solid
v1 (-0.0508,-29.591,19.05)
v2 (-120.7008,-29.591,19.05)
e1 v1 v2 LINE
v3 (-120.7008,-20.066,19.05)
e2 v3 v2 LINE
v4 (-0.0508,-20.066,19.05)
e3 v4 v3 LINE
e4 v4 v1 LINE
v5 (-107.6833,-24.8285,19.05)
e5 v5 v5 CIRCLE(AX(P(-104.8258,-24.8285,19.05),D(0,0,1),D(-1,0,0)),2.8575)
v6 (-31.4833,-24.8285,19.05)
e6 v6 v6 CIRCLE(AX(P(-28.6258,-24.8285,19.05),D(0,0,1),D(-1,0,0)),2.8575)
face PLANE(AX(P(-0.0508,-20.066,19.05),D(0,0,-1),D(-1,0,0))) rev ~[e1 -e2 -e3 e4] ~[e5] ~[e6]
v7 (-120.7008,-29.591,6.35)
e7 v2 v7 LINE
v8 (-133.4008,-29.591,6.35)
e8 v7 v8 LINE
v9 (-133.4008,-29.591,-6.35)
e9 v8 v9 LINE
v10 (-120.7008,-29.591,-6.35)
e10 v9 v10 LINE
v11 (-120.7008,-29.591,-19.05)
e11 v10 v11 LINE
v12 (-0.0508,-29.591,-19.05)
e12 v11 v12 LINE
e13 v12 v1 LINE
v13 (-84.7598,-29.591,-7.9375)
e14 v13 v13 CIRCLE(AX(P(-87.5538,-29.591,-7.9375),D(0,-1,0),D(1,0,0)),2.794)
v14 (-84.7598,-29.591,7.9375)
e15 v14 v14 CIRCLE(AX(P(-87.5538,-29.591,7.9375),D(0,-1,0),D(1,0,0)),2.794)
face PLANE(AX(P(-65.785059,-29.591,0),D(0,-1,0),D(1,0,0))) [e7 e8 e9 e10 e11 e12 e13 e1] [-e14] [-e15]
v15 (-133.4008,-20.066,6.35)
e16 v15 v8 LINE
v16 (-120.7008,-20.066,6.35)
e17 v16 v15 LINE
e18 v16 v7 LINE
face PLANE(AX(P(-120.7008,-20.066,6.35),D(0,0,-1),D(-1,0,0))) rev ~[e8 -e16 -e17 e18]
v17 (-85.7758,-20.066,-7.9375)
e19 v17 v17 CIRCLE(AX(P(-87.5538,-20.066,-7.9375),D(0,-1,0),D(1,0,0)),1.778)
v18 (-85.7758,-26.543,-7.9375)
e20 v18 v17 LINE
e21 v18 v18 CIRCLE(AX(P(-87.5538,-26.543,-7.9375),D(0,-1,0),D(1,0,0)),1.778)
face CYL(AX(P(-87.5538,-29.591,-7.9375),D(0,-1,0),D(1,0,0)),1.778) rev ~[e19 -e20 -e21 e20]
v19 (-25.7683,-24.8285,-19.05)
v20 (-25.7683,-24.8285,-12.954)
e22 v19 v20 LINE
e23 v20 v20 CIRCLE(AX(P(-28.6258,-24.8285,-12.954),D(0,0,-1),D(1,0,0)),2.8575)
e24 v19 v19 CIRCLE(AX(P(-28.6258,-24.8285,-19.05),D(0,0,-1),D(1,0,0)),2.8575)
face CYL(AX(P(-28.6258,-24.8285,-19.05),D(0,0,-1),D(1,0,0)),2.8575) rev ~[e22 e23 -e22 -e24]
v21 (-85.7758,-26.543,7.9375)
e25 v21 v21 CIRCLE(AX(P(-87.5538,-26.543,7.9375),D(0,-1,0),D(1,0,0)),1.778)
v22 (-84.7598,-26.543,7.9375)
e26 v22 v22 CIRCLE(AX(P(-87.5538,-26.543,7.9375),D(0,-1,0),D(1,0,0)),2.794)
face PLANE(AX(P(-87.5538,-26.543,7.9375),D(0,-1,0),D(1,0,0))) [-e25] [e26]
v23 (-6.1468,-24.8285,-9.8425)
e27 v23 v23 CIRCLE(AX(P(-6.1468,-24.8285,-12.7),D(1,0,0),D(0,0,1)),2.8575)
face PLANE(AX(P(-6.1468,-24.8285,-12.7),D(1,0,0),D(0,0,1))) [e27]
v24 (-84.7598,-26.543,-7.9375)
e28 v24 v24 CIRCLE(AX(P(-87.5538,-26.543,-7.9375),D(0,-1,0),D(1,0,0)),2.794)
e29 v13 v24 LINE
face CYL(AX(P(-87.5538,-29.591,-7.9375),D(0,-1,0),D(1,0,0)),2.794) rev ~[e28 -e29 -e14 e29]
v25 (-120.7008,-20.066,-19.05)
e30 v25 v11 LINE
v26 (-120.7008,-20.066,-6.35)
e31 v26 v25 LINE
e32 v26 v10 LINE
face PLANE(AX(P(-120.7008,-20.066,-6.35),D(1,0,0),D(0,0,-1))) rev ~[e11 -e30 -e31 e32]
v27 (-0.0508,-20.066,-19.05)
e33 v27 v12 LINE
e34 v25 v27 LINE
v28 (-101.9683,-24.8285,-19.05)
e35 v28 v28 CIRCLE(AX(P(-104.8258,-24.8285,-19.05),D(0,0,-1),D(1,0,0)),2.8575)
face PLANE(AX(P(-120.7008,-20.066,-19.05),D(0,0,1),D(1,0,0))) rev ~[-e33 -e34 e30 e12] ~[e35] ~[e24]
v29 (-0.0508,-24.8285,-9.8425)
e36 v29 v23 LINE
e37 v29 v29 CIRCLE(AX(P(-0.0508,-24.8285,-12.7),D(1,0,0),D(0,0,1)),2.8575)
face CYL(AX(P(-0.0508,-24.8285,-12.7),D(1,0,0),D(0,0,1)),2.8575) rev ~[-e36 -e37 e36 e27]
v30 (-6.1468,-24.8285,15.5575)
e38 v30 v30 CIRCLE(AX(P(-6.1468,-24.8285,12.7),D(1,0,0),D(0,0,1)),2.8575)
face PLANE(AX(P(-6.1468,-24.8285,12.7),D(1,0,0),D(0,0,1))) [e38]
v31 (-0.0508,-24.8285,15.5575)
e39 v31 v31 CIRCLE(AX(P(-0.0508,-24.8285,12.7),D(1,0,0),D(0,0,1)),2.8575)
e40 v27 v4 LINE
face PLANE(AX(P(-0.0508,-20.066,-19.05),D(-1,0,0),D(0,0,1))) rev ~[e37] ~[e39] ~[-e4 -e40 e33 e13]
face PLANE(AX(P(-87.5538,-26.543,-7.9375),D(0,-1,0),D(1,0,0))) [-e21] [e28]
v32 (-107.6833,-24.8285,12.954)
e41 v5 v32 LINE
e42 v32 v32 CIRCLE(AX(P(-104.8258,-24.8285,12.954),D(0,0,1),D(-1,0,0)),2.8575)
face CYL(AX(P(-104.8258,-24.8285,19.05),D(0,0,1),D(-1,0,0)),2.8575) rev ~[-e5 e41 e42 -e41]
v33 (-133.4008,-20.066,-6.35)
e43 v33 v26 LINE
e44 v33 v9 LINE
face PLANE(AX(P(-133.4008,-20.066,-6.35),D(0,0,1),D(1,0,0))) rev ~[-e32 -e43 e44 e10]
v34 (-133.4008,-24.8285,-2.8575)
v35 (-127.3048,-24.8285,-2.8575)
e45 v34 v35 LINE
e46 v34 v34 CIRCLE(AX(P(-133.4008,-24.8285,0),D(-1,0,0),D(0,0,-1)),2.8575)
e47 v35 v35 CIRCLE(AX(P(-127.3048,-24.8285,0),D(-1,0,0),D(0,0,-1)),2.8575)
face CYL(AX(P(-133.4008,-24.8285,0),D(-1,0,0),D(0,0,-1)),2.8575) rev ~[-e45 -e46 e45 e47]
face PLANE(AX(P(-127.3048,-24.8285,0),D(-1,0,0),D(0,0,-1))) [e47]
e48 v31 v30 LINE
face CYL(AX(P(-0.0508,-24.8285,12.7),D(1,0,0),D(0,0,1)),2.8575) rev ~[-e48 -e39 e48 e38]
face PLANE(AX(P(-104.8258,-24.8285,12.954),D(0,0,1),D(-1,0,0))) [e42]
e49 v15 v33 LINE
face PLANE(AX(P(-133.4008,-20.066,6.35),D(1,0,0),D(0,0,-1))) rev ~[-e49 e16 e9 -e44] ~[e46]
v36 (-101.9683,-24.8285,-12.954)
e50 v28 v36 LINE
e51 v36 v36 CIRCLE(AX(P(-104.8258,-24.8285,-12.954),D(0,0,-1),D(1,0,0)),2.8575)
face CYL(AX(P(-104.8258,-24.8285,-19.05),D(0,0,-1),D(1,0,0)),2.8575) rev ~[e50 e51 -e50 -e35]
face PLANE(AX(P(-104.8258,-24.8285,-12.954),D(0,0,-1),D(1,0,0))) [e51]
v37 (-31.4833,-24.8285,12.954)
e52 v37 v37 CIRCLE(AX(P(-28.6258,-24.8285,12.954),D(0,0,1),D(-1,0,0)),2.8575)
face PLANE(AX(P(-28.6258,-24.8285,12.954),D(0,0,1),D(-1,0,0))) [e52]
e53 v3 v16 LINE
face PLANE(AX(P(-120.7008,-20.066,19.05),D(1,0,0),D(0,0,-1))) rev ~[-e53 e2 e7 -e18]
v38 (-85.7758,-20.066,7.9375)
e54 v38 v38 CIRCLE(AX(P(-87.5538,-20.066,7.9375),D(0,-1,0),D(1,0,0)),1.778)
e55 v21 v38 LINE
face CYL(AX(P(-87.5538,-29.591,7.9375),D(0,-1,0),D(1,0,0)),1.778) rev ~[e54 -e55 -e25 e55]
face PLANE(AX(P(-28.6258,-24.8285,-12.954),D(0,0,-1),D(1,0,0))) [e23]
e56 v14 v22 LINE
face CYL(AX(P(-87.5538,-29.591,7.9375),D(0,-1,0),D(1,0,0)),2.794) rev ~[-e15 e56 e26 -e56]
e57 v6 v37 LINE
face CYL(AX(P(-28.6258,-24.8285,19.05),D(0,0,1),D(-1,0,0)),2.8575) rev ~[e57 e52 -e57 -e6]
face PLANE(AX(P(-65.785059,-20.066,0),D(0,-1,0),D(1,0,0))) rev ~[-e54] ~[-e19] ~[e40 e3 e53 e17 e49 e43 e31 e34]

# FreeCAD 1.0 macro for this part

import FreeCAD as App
import Part
import Sketcher

V = App.Vector
Q = App.Units.Quantity

doc = App.newDocument("Part")
body = doc.addObject("PartDesign::Body", "Body")

sketch1 = body.newObject("Sketcher::SketchObject", "Sketch")
sketch1.AttachmentSupport = (doc.getObject("XZ_Plane"), [""])
sketch1.MapMode = "FlatFace"
sketch1.addGeometry([
    Part.LineSegment(V(66.675, -19.05, 0), V(66.675, 19.05, 0)),
    Part.LineSegment(V(66.675, 19.05, 0), V(-53.975, 19.05, 0)),
    Part.LineSegment(V(-53.975, 19.05, 0), V(-53.975, 6.35, 0)),
    Part.LineSegment(V(-53.975, 6.35, 0), V(-66.675, 6.35, 0)),
    Part.LineSegment(V(-66.675, 6.35, 0), V(-66.675, -6.35, 0)),
    Part.LineSegment(V(-66.675, -6.35, 0), V(-53.975, -6.35, 0)),
    Part.LineSegment(V(-53.975, -6.35, 0), V(-53.975, -19.05, 0)),
    Part.LineSegment(V(-53.975, -19.05, 0), V(66.675, -19.05, 0)),
], False)
sketch1.addConstraint([
    Sketcher.Constraint("Coincident", 0, 2, 1, 1),
    Sketcher.Constraint("Coincident", 1, 2, 2, 1),
    Sketcher.Constraint("Coincident", 2, 2, 3, 1),
    Sketcher.Constraint("Coincident", 3, 2, 4, 1),
    Sketcher.Constraint("Coincident", 4, 2, 5, 1),
    Sketcher.Constraint("Coincident", 5, 2, 6, 1),
    Sketcher.Constraint("Coincident", 6, 2, 7, 1),
    Sketcher.Constraint("Coincident", 7, 2, 0, 1),
    Sketcher.Constraint("Vertical", 0),
    Sketcher.Constraint("Horizontal", 1),
    Sketcher.Constraint("Vertical", 2),
    Sketcher.Constraint("Horizontal", 3),
    Sketcher.Constraint("Vertical", 4),
    Sketcher.Constraint("Horizontal", 5),
    Sketcher.Constraint("Vertical", 6),
    Sketcher.Constraint("Horizontal", 7),
    Sketcher.Constraint("Symmetric", 2, 2, 5, 2, -1),
    Sketcher.Constraint("Equal", 5, 2),
    Sketcher.Constraint("Equal", 2, 4),
    Sketcher.Constraint("Equal", 4, 6),
    Sketcher.Constraint("DistanceX", 3, 2, 3, 1, Q("0.5 in")),
    Sketcher.Constraint("DistanceX", 1, 2, 1, 1, Q("4.75 in")),
    Sketcher.Constraint("DistanceX", -1, 1, 0, 2, Q("2.625 in")),
])
pad1 = body.newObject("PartDesign::Pad", "Pad")
pad1.Profile = sketch1
pad1.Length = Q("0.375 in")

sketch2 = body.newObject("Sketcher::SketchObject", "Sketch001")
sketch2.AttachmentSupport = (doc.getObject("XY_Plane"), [""])
sketch2.MapMode = "FlatFace"
sketch2.AttachmentOffset = App.Placement(V(0, 0, 0.75 * 25.4), App.Rotation())
sketch2.addGeometry([
    Part.Circle(V(-38.1, -4.7625, 0), V(0, 0, 1), 2.8575),
    Part.Circle(V(38.1, -4.7625, 0), V(0, 0, 1), 2.8575),
], False)
sketch2.addConstraint([
    Sketcher.Constraint("Equal", 0, 1),
    Sketcher.Constraint("Symmetric", 0, 3, 1, 3, -2),
    Sketcher.Constraint("Diameter", 0, Q("0.225 in")),
    Sketcher.Constraint("DistanceX", 0, 3, 1, 3, Q("3 in")),
    Sketcher.Constraint("DistanceY", 0, 3, -1, 1, Q("0.1875 in")),
])
pocket1 = body.newObject("PartDesign::Pocket", "Pocket")
pocket1.Profile = sketch2
pocket1.Length = Q("0.24 in")

sketch3 = body.newObject("Sketcher::SketchObject", "Sketch002")
sketch3.AttachmentSupport = (doc.getObject("XY_Plane"), [""])
sketch3.MapMode = "FlatFace"
sketch3.AttachmentOffset = App.Placement(V(0, 0, -0.75 * 25.4), App.Rotation())
sketch3.addGeometry([
    Part.Circle(V(38.1, -4.7625, 0), V(0, 0, 1), 2.8575),
    Part.Circle(V(-38.1, -4.7625, 0), V(0, 0, 1), 2.8575),
], False)
sketch3.addConstraint([
    Sketcher.Constraint("Equal", 0, 1),
    Sketcher.Constraint("Symmetric", 0, 3, 1, 3, -2),
    Sketcher.Constraint("Diameter", 0, Q("0.225 in")),
    Sketcher.Constraint("DistanceX", 1, 3, 0, 3, Q("3 in")),
    Sketcher.Constraint("DistanceY", 0, 3, -1, 1, Q("0.1875 in")),
])
pocket2 = body.newObject("PartDesign::Pocket", "Pocket001")
pocket2.Profile = sketch3
pocket2.Length = Q("0.24 in")
pocket2.Reversed = True

sketch4 = body.newObject("Sketcher::SketchObject", "Sketch003")
sketch4.AttachmentSupport = (doc.getObject("YZ_Plane"), [""])
sketch4.MapMode = "FlatFace"
sketch4.AttachmentOffset = App.Placement(V(0, 0, 2.625 * 25.4), App.Rotation())
sketch4.addGeometry([
    Part.Circle(V(-4.7625, 12.7, 0), V(0, 0, 1), 2.8575),
    Part.Circle(V(-4.7625, -12.7, 0), V(0, 0, 1), 2.8575),
], False)
sketch4.addConstraint([
    Sketcher.Constraint("Equal", 0, 1),
    Sketcher.Constraint("Symmetric", 0, 3, 1, 3, -1),
    Sketcher.Constraint("Diameter", 0, Q("0.225 in")),
    Sketcher.Constraint("DistanceY", 1, 3, 0, 3, Q("1 in")),
    Sketcher.Constraint("DistanceX", 0, 3, -1, 1, Q("0.1875 in")),
])
pocket3 = body.newObject("PartDesign::Pocket", "Pocket002")
pocket3.Profile = sketch4
pocket3.Length = Q("0.24 in")

sketch5 = body.newObject("Sketcher::SketchObject", "Sketch004")
sketch5.AttachmentSupport = (doc.getObject("YZ_Plane"), [""])
sketch5.MapMode = "FlatFace"
sketch5.AttachmentOffset = App.Placement(V(0, 0, -2.625 * 25.4), App.Rotation())
sketch5.addGeometry(Part.Circle(V(-4.7625, 0, 0), V(0, 0, 1), 2.8575), False)
sketch5.addConstraint([
    Sketcher.Constraint("PointOnObject", 0, 3, -1),
    Sketcher.Constraint("Diameter", 0, Q("0.225 in")),
    Sketcher.Constraint("DistanceX", 0, 3, -1, 1, Q("0.1875 in")),
])
pocket4 = body.newObject("PartDesign::Pocket", "Pocket003")
pocket4.Profile = sketch5
pocket4.Length = Q("0.24 in")
pocket4.Reversed = True

sketch6 = body.newObject("Sketcher::SketchObject", "Sketch005")
sketch6.AttachmentSupport = (doc.getObject("XZ_Plane"), [""])
sketch6.MapMode = "FlatFace"
sketch6.AttachmentOffset = App.Placement(V(0, 0, 0.375 * 25.4), App.Rotation())
sketch6.addGeometry([
    Part.Circle(V(-20.828, 7.9375, 0), V(0, 0, 1), 1.778),
    Part.Circle(V(-20.828, -7.9375, 0), V(0, 0, 1), 1.778),
], False)
sketch6.addConstraint([
    Sketcher.Constraint("Equal", 0, 1),
    Sketcher.Constraint("Symmetric", 0, 3, 1, 3, -1),
    Sketcher.Constraint("Diameter", 0, Q("0.14 in")),
    Sketcher.Constraint("DistanceX", 0, 3, -1, 1, Q("0.82 in")),
    Sketcher.Constraint("DistanceY", -1, 1, 0, 3, Q("0.3125 in")),
])
pocket5 = body.newObject("PartDesign::Pocket", "Pocket004")
pocket5.Profile = sketch6
pocket5.Type = "ThroughAll"

sketch7 = body.newObject("Sketcher::SketchObject", "Sketch006")
sketch7.AttachmentSupport = (doc.getObject("XZ_Plane"), [""])
sketch7.MapMode = "FlatFace"
sketch7.AttachmentOffset = App.Placement(V(0, 0, 0.375 * 25.4), App.Rotation())
sketch7.addGeometry([
    Part.Circle(V(-20.828, 7.9375, 0), V(0, 0, 1), 2.794),
    Part.Circle(V(-20.828, -7.9375, 0), V(0, 0, 1), 2.794),
], False)
sketch7.addConstraint([
    Sketcher.Constraint("Equal", 0, 1),
    Sketcher.Constraint("Symmetric", 0, 3, 1, 3, -1),
    Sketcher.Constraint("Diameter", 0, Q("0.22 in")),
    Sketcher.Constraint("DistanceX", 0, 3, -1, 1, Q("0.82 in")),
    Sketcher.Constraint("DistanceY", -1, 1, 0, 3, Q("0.3125 in")),
])
pocket6 = body.newObject("PartDesign::Pocket", "Pocket005")
pocket6.Profile = sketch7
pocket6.Length = Q("0.12 in")
body2 = doc.addObject("PartDesign::Body", "Body001")
doc.recompute()

body.Placement = App.Placement(V(-66.7258, -20.066, 0), App.Rotation(V(0, 0, 1), 0))
boolean = body2.newObject("PartDesign::Boolean", "Boolean")
boolean.Type = "Fuse"
boolean.addObjects([body])

doc.recompute()
